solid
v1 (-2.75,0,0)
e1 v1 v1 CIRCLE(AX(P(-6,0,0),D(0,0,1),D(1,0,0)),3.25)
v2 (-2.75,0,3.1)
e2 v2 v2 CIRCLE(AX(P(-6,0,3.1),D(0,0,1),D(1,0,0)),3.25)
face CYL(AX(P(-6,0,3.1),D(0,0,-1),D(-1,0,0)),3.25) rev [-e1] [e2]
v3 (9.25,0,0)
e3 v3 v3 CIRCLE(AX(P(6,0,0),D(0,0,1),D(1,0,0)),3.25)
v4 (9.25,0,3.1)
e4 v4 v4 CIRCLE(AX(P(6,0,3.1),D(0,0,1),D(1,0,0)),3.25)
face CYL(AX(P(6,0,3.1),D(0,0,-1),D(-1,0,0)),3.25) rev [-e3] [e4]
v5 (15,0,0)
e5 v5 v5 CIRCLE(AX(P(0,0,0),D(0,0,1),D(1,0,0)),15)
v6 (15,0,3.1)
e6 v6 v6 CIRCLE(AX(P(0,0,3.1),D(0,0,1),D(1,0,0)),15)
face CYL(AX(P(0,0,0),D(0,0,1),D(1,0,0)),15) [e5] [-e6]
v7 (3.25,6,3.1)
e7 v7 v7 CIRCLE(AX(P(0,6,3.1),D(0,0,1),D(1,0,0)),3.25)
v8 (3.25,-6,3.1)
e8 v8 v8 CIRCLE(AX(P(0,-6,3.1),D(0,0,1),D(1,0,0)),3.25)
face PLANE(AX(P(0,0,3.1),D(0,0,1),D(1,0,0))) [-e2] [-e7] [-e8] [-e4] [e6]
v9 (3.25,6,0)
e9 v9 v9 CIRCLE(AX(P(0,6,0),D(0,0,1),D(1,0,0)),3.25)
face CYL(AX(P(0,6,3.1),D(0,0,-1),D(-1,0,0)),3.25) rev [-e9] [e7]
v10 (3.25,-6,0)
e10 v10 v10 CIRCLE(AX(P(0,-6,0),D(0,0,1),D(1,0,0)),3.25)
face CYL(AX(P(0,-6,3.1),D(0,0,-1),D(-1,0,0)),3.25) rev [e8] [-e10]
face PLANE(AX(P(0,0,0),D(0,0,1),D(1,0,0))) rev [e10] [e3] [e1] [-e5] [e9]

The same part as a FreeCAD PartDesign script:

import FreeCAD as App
import Part
import Sketcher
Q = App.Units.Quantity

doc = App.newDocument("Part")
body = doc.addObject("PartDesign::Body", "Body")

# Sketch on XY plane
sketch1 = doc.addObject("Sketcher::SketchObject", "Sketch")
body.addObject(sketch1)
sketch1.AttachmentSupport = (doc.XY_Plane, [""])
sketch1.MapMode = "FlatFace"
sketch1.addGeometry([
    Part.Circle(App.Vector(0, 0, 0), App.Vector(0, 0, 1), 12.7),  # 0
    Part.Circle(App.Vector(-6, 0, 0), App.Vector(0, 0, 1), 3.2),  # 1
    Part.Circle(App.Vector(0, -6, 0), App.Vector(0, 0, 1), 3.2),  # 2
    Part.Circle(App.Vector(6, 0, 0), App.Vector(0, 0, 1), 3.2),  # 3
    Part.Circle(App.Vector(0, 6, 0), App.Vector(0, 0, 1), 3.2),  # 4
], False)
sketch1.addConstraint([
    Sketcher.Constraint("Coincident", 0, 3, -1, 1),
    Sketcher.Constraint("Equal", 1, 2),
    Sketcher.Constraint("Equal", 2, 3),
    Sketcher.Constraint("Equal", 3, 4),
    Sketcher.Constraint("Symmetric", 1, 3, 3, 3, -1, 1),
    Sketcher.Constraint("Symmetric", 2, 3, 4, 3, -1, 1),
    Sketcher.Constraint("PointOnObject", 1, 3, -1),
    Sketcher.Constraint("PointOnObject", 2, 3, -2),
    Sketcher.Constraint("Diameter", 0, Q("25.4 mm")),
    Sketcher.Constraint("Diameter", 1, Q("6.5 mm")),
    Sketcher.Constraint("DistanceX", 1, 3, -1, 1, Q("6 mm")),
    Sketcher.Constraint("DistanceY", 2, 3, -1, 1, Q("6 mm")),
])
pad1 = doc.addObject("PartDesign::Pad", "Pad")
body.addObject(pad1)
pad1.Profile = sketch1
pad1.Length = 3.1

# Sketch on XY plane
sketch2 = doc.addObject("Sketcher::SketchObject", "Sketch001")
body.addObject(sketch2)
sketch2.AttachmentSupport = (doc.XY_Plane, [""])
sketch2.MapMode = "FlatFace"
sketch2.AttachmentOffset = App.Placement(App.Vector(0, 0, 3.1), App.Rotation())
sketch2.addGeometry([
    Part.Circle(App.Vector(0, 0, 0), App.Vector(0, 0, 1), 15),
    Part.Circle(App.Vector(0, 0, 0), App.Vector(0, 0, 1), 13),
], False)
sketch2.addConstraint([
    Sketcher.Constraint("Coincident", 0, 3, -1, 1),
    Sketcher.Constraint("Coincident", 1, 3, -1, 1),
    Sketcher.Constraint("Diameter", 0, Q("30 mm")),
    Sketcher.Constraint("Diameter", 1, Q("25.4 mm")),
])
pad2 = doc.addObject("PartDesign::Pad", "Pad001")
body.addObject(pad2)
pad2.Profile = sketch2
pad2.Type = "UpToLast"
pad2.Reversed = True

doc.recompute()
